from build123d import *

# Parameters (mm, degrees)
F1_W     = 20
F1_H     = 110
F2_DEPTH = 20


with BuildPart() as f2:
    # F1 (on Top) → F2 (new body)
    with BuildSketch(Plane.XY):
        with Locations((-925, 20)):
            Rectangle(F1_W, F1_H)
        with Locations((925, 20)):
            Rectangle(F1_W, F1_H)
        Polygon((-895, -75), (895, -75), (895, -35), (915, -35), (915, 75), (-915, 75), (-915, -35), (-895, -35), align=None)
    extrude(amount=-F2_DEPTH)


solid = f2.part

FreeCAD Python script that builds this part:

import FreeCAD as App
import Part
import Sketcher
from FreeCAD import Vector


def add_polygon(sketch, points):
    """Adds a closed chain of lines whose ends are joined by coincident constraints."""
    first, n = sketch.GeometryCount, len(points)
    for a, b in zip(points, points[1:] + points[:1]):
        sketch.addGeometry(Part.LineSegment(App.Vector(*a, 0), App.Vector(*b, 0)), False)
    for i in range(n):
        sketch.addConstraint(Sketcher.Constraint("Coincident", first + i, 2, first + (i + 1) % n, 1))

doc = App.newDocument("Part")
body = doc.addObject("PartDesign::Body", "Body")

# Sketch on XY plane
sketch1 = doc.addObject("Sketcher::SketchObject", "Sketch")
body.addObject(sketch1)
sketch1.AttachmentSupport = (doc.XY_Plane, [""])
sketch1.MapMode = "FlatFace"
add_polygon(sketch1, [(-935, 75), (-935, -35), (-895, -35), (-895, -75), (895, -75), (895, -35), (935, -35), (935, 75)])  # lines 0-7
sketch1.addConstraint(Sketcher.Constraint("Vertical", 0))
sketch1.addConstraint(Sketcher.Constraint("Horizontal", 1))
sketch1.addConstraint(Sketcher.Constraint("Vertical", 2))
sketch1.addConstraint(Sketcher.Constraint("Horizontal", 3))
sketch1.addConstraint(Sketcher.Constraint("Vertical", 4))
sketch1.addConstraint(Sketcher.Constraint("Horizontal", 5))
sketch1.addConstraint(Sketcher.Constraint("Vertical", 6))
sketch1.addConstraint(Sketcher.Constraint("Horizontal", 7))
sketch1.addConstraint(Sketcher.Constraint("Symmetric", 1, 2, 4, 2, -2))
sketch1.addConstraint(Sketcher.Constraint("Equal", 1, 5))
sketch1.addConstraint(Sketcher.Constraint("Equal", 5, 2))
sketch1.addConstraint(Sketcher.Constraint("DistanceX", 1, 1, 1, 2, 40.0))
sketch1.addConstraint(Sketcher.Constraint("DistanceX", 3, 1, 3, 2, 1790.0))
sketch1.addConstraint(Sketcher.Constraint("DistanceY", 0, 2, 0, 1, 110.0))
sketch1.addConstraint(Sketcher.Constraint("DistanceY", 0, 2, -1, 1, 35.0))
pad1 = doc.addObject("PartDesign::Pad", "Pad")
body.addObject(pad1)
pad1.Profile = sketch1
pad1.Length = 20
pad1.Reversed = True

doc.recompute()
